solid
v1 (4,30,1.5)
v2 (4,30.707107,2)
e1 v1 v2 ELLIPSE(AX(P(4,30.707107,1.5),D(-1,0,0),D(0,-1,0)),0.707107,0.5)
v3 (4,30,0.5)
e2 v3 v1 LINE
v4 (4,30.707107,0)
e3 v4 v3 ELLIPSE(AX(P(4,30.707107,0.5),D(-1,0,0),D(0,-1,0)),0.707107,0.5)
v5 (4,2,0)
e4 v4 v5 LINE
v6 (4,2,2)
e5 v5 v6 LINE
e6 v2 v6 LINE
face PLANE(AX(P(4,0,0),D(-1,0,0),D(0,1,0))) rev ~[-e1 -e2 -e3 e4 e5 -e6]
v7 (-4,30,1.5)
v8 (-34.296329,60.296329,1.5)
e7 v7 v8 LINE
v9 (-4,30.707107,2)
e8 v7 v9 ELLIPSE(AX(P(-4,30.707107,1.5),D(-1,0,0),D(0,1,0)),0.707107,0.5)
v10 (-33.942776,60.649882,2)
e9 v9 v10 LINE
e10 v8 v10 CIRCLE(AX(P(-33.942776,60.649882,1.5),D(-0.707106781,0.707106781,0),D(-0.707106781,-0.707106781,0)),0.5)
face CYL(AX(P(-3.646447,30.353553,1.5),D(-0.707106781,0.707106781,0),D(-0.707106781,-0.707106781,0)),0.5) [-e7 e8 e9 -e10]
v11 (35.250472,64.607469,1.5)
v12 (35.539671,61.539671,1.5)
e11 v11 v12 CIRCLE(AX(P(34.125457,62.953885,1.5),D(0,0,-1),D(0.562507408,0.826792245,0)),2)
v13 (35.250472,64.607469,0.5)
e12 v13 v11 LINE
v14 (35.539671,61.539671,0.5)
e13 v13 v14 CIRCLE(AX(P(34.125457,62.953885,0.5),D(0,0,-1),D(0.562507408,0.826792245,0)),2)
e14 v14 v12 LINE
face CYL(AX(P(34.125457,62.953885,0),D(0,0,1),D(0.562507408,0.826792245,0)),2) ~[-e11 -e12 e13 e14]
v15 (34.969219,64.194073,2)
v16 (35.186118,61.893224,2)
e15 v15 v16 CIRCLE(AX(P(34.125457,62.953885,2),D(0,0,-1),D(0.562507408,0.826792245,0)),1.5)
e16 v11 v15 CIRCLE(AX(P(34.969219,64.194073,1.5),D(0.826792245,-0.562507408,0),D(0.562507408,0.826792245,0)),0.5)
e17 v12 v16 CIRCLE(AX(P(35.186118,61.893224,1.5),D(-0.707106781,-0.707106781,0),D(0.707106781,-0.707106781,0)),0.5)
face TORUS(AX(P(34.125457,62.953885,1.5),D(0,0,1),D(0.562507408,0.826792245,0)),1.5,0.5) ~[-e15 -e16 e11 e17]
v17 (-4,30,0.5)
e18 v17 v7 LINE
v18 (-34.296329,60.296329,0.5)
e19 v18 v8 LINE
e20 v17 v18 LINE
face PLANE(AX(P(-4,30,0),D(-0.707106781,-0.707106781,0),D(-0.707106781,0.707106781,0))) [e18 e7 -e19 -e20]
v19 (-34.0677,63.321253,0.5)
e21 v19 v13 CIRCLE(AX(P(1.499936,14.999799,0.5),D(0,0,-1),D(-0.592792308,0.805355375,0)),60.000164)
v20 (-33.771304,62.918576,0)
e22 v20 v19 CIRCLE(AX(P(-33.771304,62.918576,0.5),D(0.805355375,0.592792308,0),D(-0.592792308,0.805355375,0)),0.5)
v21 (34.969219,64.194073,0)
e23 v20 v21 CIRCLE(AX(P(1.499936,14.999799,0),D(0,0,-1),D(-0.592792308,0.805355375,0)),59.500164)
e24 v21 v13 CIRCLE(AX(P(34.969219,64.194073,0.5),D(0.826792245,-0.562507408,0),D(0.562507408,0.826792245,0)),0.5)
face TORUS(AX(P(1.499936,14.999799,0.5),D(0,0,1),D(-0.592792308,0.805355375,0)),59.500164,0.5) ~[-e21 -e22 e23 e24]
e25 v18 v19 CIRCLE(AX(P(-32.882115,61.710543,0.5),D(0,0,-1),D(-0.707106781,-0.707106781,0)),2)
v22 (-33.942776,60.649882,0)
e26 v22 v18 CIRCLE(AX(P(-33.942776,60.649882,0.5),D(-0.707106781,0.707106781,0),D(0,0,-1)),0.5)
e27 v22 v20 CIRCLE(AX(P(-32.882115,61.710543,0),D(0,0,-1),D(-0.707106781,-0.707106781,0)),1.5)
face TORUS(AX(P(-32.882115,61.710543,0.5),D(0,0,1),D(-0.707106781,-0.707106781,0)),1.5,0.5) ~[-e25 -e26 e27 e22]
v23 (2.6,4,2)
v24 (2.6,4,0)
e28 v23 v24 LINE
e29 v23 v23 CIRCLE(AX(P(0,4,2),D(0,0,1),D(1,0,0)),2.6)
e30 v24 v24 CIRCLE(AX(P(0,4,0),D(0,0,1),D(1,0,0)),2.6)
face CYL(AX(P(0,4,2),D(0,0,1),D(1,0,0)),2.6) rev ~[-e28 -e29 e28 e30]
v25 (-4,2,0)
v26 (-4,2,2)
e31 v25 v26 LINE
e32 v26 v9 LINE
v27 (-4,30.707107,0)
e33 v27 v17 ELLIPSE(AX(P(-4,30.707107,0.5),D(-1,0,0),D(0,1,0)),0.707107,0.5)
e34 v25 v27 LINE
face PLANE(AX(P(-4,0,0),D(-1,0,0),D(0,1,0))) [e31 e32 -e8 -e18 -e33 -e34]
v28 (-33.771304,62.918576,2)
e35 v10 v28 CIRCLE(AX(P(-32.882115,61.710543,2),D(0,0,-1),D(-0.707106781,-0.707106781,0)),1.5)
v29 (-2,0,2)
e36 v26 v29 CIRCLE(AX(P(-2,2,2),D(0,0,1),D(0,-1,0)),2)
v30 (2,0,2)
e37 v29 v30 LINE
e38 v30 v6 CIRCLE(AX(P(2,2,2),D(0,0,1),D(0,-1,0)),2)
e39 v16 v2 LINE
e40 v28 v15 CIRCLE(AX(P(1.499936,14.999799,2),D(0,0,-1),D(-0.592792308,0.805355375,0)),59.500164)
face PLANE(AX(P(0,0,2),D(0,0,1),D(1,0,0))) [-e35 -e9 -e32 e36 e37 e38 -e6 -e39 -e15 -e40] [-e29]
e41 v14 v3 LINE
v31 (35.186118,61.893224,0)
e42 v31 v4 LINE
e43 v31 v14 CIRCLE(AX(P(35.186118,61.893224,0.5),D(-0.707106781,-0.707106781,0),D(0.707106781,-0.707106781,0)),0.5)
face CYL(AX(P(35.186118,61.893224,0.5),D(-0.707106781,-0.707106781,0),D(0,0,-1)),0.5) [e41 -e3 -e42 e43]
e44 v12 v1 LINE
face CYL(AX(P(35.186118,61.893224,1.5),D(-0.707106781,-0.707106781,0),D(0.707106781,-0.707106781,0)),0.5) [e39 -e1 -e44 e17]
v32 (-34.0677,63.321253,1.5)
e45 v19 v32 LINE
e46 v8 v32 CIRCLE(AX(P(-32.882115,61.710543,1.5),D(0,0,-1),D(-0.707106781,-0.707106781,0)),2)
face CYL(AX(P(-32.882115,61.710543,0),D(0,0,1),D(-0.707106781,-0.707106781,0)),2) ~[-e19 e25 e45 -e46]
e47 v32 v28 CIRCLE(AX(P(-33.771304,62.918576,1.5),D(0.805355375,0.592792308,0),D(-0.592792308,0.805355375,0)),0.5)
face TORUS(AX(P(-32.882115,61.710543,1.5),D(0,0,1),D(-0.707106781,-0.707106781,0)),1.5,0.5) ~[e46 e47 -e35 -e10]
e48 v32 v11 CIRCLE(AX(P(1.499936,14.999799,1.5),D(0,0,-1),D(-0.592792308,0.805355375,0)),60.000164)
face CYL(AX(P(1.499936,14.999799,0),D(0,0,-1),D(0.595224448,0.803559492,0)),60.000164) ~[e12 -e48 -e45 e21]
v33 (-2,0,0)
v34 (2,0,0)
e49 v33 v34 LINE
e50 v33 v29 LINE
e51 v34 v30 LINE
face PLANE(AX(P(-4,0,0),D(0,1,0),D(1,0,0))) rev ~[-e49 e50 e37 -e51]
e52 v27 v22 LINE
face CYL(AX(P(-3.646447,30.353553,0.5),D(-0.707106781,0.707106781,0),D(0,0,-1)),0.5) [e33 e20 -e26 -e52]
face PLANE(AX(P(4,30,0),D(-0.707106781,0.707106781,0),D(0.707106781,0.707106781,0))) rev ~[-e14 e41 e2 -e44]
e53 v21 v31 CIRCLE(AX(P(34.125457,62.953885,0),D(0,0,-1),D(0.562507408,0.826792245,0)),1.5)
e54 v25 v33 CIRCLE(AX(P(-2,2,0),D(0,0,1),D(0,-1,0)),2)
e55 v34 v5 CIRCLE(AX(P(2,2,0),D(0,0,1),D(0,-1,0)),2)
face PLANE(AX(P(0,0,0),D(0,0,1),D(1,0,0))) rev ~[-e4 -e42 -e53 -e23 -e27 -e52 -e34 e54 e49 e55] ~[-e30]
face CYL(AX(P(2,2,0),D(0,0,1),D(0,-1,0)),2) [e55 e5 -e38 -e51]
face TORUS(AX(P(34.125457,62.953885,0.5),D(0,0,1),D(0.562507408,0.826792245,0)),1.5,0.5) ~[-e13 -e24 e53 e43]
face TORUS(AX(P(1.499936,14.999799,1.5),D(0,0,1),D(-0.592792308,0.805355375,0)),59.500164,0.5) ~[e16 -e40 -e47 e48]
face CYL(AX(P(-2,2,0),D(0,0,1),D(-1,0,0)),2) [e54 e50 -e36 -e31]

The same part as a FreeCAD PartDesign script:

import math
import FreeCAD as App
import Part
import Sketcher
Q = App.Units.Quantity


def edges_at(feature, points):
    """Names of the edges that pass closest to the given points."""
    edges = feature.Shape.Edges
    near = lambda p: min(range(len(edges)), key=lambda i: edges[i].distToShape(Part.Vertex(*p))[0])
    return sorted({f"Edge{near(p) + 1}" for p in points})

doc = App.newDocument("Part")
body = doc.addObject("PartDesign::Body", "Body")

# Sketch on XY plane
sketch1 = body.newObject("Sketcher::SketchObject", "Sketch")
sketch1.AttachmentSupport = (doc.getObject("XY_Plane"), [""])
sketch1.MapMode = "FlatFace"
sketch1.addGeometry(Part.LineSegment(App.Vector(-4, 30, 0), App.Vector(-4, 0, 0)), False)
sketch1.addGeometry(Part.LineSegment(App.Vector(-4, 0, 0), App.Vector(4, 0, 0)), False)
sketch1.addGeometry(Part.LineSegment(App.Vector(4, 0, 0), App.Vector(4, 30, 0)), False)
sketch1.addGeometry(Part.LineSegment(App.Vector(4, 30, 0), App.Vector(37, 63, 0)), False)
sketch1.addGeometry(Part.ArcOfCircle(Part.Circle(App.Vector(2, 15, 0), App.Vector(0, 0, 1), 60), math.radians(53), math.radians(129)), False)
sketch1.addGeometry(Part.LineSegment(App.Vector(-36, 62, 0), App.Vector(-4, 30, 0)), False)
sketch1.addConstraint(Sketcher.Constraint("Coincident", 0, 2, 1, 1))
sketch1.addConstraint(Sketcher.Constraint("Coincident", 1, 2, 2, 1))
sketch1.addConstraint(Sketcher.Constraint("Coincident", 2, 2, 3, 1))
sketch1.addConstraint(Sketcher.Constraint("Coincident", 3, 2, 4, 1))
sketch1.addConstraint(Sketcher.Constraint("Coincident", 4, 2, 5, 1))
sketch1.addConstraint(Sketcher.Constraint("Coincident", 5, 2, 0, 1))
sketch1.addConstraint(Sketcher.Constraint("Vertical", 0))
sketch1.addConstraint(Sketcher.Constraint("Horizontal", 1))
sketch1.addConstraint(Sketcher.Constraint("Vertical", 2))
sketch1.addConstraint(Sketcher.Constraint("Symmetric", 0, 2, 1, 2, -1, 1))
sketch1.addConstraint(Sketcher.Constraint("Perpendicular", 3, 5))
sketch1.addConstraint(Sketcher.Constraint("Horizontal", 2, 2, 5, 2))
sketch1.addConstraint(Sketcher.Constraint("Radius", 4, 60.0))
sketch1.addConstraint(Sketcher.Constraint("DistanceX", 1, 1, 1, 2, 8.0))
sketch1.addConstraint(Sketcher.Constraint("DistanceY", 0, 2, 0, 1, 30.0))
sketch1.addConstraint(Sketcher.Constraint("Angle", 3, Q("45 deg")))
sketch1.addConstraint(Sketcher.Constraint("DistanceY", -1, 1, 4, 3, 15.0))
sketch1.addConstraint(Sketcher.Constraint("DistanceX", -1, 1, 4, 3, 1.5))
pad1 = body.newObject("PartDesign::Pad", "Pad")
pad1.Profile = sketch1
pad1.Length = 2
doc.recompute()

fillet = body.newObject("PartDesign::Fillet", "Fillet")
fillet.Base = (pad1, edges_at(pad1, [(37.214, 63.214, 1), (-35.91, 61.91, 1)]))
fillet.Radius = 2
doc.recompute()

fillet2 = body.newObject("PartDesign::Fillet", "Fillet001")
fillet2.Base = (fillet, edges_at(fillet, [(4, 0, 1), (-4, 0, 1)]))
fillet2.Radius = 2
doc.recompute()

fillet3 = body.newObject("PartDesign::Fillet", "Fillet002")
fillet3.Base = (fillet2, edges_at(fillet2, [
    (-34.876, 61.861, 2),
    (-19.148, 45.148, 2),
    (36.117, 63.142, 2),
    (19.77, 45.77, 2),
    (0.387, 74.99, 2),
    (-34.876, 61.861, 0),
    (-19.148, 45.148, 0),
    (36.117, 63.142, 0),
    (19.77, 45.77, 0),
    (0.387, 74.99, 0),
]))
fillet3.Radius = 0.5

# Sketch on XY plane
sketch2 = body.newObject("Sketcher::SketchObject", "Sketch001")
sketch2.AttachmentSupport = (doc.getObject("XY_Plane"), [""])
sketch2.MapMode = "FlatFace"
sketch2.AttachmentOffset = App.Placement(App.Vector(0, 0, 2), App.Rotation())
sketch2.addGeometry(Part.Circle(App.Vector(0, 4, 0), App.Vector(0, 0, 1), 2.6), False)
sketch2.addConstraint(Sketcher.Constraint("PointOnObject", 0, 3, -2))
sketch2.addConstraint(Sketcher.Constraint("Diameter", 0, 5.2))
sketch2.addConstraint(Sketcher.Constraint("DistanceY", -1, 1, 0, 3, 4.0))
pocket1 = body.newObject("PartDesign::Pocket", "Pocket")
pocket1.Profile = sketch2
pocket1.Length = 2

doc.recompute()
